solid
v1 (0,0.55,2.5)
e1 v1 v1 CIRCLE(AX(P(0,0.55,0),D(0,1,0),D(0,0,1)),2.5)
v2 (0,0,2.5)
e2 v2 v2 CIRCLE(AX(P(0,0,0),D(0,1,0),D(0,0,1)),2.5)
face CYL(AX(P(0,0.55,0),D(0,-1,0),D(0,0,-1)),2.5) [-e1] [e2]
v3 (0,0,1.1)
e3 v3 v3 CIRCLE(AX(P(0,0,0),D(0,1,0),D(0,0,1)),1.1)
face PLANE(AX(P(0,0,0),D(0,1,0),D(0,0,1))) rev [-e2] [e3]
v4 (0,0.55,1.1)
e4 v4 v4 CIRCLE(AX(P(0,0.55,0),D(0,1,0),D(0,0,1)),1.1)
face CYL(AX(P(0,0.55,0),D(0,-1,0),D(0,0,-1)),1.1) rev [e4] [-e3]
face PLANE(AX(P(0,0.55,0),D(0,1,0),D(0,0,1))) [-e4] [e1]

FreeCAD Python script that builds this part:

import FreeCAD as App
import Part
import Sketcher

V = App.Vector

doc = App.newDocument("Part")
body = doc.addObject("PartDesign::Body", "Body")

# Sketch on XZ plane
sketch1 = doc.addObject("Sketcher::SketchObject", "Sketch")
body.addObject(sketch1)
sketch1.AttachmentSupport = (doc.XZ_Plane, [""])
sketch1.MapMode = "FlatFace"
sketch1.addGeometry([
    Part.Circle(V(0, 0, 0), V(0, 0, 1), 2.5),
    Part.Circle(V(0, 0, 0), V(0, 0, 1), 1.1),
], False)
sketch1.addConstraint([
    Sketcher.Constraint("Coincident", 0, 3, -1, 1),
    Sketcher.Constraint("Coincident", 1, 3, -1, 1),
    Sketcher.Constraint("Diameter", 0, 5.0),
    Sketcher.Constraint("Diameter", 1, 2.2),
])
pad1 = doc.addObject("PartDesign::Pad", "Pad")
body.addObject(pad1)
pad1.Profile = sketch1
pad1.Length = 0.55
pad1.Reversed = True

doc.recompute()
